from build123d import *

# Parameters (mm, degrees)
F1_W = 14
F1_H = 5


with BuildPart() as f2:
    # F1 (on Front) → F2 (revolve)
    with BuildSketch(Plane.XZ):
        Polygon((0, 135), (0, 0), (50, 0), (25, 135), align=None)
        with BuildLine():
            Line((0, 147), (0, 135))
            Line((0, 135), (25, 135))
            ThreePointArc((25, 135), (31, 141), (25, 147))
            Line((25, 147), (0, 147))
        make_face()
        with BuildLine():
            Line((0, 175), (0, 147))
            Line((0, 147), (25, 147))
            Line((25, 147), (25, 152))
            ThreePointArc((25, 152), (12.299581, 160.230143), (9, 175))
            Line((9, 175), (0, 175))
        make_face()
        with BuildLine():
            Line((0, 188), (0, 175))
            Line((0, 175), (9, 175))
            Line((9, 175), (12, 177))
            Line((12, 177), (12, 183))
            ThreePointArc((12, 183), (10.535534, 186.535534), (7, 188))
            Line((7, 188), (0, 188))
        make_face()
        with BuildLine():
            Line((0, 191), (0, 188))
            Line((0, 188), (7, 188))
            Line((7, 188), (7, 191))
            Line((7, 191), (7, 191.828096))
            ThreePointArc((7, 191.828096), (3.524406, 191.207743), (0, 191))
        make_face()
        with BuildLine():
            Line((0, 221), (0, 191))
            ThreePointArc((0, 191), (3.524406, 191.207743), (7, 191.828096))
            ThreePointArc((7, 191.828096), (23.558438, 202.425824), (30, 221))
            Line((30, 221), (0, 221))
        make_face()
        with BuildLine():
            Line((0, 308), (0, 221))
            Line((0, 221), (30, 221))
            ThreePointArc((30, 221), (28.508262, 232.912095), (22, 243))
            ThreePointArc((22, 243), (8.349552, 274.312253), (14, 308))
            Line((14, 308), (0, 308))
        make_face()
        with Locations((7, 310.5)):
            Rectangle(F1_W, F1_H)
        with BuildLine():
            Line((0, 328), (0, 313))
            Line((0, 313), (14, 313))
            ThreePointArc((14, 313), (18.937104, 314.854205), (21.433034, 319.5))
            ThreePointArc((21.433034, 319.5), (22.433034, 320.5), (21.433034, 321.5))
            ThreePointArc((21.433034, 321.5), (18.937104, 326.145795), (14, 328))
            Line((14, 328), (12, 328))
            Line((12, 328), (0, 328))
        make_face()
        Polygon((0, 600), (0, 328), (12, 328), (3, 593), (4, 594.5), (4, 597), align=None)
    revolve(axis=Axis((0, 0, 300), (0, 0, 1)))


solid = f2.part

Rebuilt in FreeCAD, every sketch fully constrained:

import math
import FreeCAD as App
import Part
import Sketcher

V = App.Vector

doc = App.newDocument("Part")
params = doc.addObject("Spreadsheet::Sheet", "Params")
for row, (alias, value) in enumerate([
    ("sketch1_radius", "6 mm"),
    ("sketch1_radius2", "20 mm"),
    ("sketch1_radius3", "5 mm"),
    ("sketch1_radius4", "29.999998 mm"),
    ("sketch1_radius5", "1 mm"),
    ("revolution_angle", "360 deg"),
], start=1):
    params.set(f"A{row}", alias)
    params.set(f"B{row}", "=" + value)
    params.setAlias(f"B{row}", alias)

body = doc.addObject("PartDesign::Body", "Body")

# Sketch on XZ plane
sketch1 = doc.addObject("Sketcher::SketchObject", "Sketch")
body.addObject(sketch1)
sketch1.AttachmentSupport = (doc.XZ_Plane, [""])
sketch1.MapMode = "FlatFace"
sketch1.addGeometry([
    Part.LineSegment(V(0, 0, 0), V(50, 0, 0)),  # 0
    Part.LineSegment(V(50, 0, 0), V(25, 135, 0)),  # 1
    Part.ArcOfCircle(Part.Circle(V(25, 141, 0), V(0, 0, 1), 6), math.radians(-90), math.radians(90)),  # 2
    Part.LineSegment(V(25, 147, 0), V(25, 152, 0)),  # 3
    Part.ArcOfCircle(Part.Circle(V(28.717685, 171.651433, 0), V(0, 0, 1), 20), math.radians(170.361668), math.radians(259.28731)),  # 4
    Part.LineSegment(V(9, 175, 0), V(12, 177, 0)),  # 5
    Part.LineSegment(V(12, 177, 0), V(12, 183, 0)),  # 6
    Part.ArcOfCircle(Part.Circle(V(7, 183, 0), V(0, 0, 1), 5), math.radians(-0.000004), math.radians(90.000004)),  # 7
    Part.LineSegment(V(7, 188, 0), V(7, 191.828096, 0)),  # 8
    Part.ArcOfCircle(Part.Circle(V(0.000002, 220.999999, 0), V(0, 0, 1), 29.999998), math.radians(-76.506604), math.radians(0.000002)),  # 9
    Part.ArcOfCircle(Part.Circle(V(3.133843, 223.685034, 0), V(0, 0, 1), 26.999996), math.radians(-5.707253), math.radians(45.673466)),  # 10
    Part.ArcOfCircle(Part.Circle(V(67.900215, 281.641565, 0), V(0, 0, 1), 60.000002), math.radians(153.940312), math.radians(220.092692)),  # 11
    Part.LineSegment(V(14, 308, 0), V(14, 313, 0)),  # 12
    Part.ArcOfCircle(Part.Circle(V(14, 320.5, 0), V(0, 0, 1), 7.5), math.radians(-89.999998), math.radians(-7.662255)),  # 13
    Part.ArcOfCircle(Part.Circle(V(21.433034, 320.5, 0), V(0, 0, 1), 1), math.radians(-90), math.radians(90)),  # 14
    Part.ArcOfCircle(Part.Circle(V(14, 320.5, 0), V(0, 0, 1), 7.5), math.radians(7.662255), math.radians(89.999998)),  # 15
    Part.LineSegment(V(14, 328, 0), V(12, 328, 0)),  # 16
    Part.LineSegment(V(12, 328, 0), V(3, 593, 0)),  # 17
    Part.LineSegment(V(3, 593, 0), V(4, 594.5, 0)),  # 18
    Part.LineSegment(V(4, 594.5, 0), V(4, 597, 0)),  # 19
    Part.LineSegment(V(4, 597, 0), V(0, 600, 0)),  # 20
    Part.LineSegment(V(0, 600, 0), V(0, 0, 0)),  # 21
], False)
sketch1.addConstraint([
    Sketcher.Constraint("Coincident", 0, 2, 1, 1),
    Sketcher.Constraint("Coincident", 1, 2, 2, 1),
    Sketcher.Constraint("Coincident", 2, 2, 3, 1),
    Sketcher.Constraint("Coincident", 3, 2, 4, 2),
    Sketcher.Constraint("Coincident", 4, 1, 5, 1),
    Sketcher.Constraint("Coincident", 5, 2, 6, 1),
    Sketcher.Constraint("Tangent", 6, 2, 7, 1),
    Sketcher.Constraint("Coincident", 7, 2, 8, 1),
    Sketcher.Constraint("Coincident", 8, 2, 9, 1),
    Sketcher.Constraint("Coincident", 9, 2, 10, 1),
    Sketcher.Constraint("Coincident", 10, 2, 11, 2),
    Sketcher.Constraint("Coincident", 11, 1, 12, 1),
    Sketcher.Constraint("Coincident", 12, 2, 13, 1),
    Sketcher.Constraint("Coincident", 13, 2, 14, 1),
    Sketcher.Constraint("Coincident", 14, 2, 15, 1),
    Sketcher.Constraint("Tangent", 15, 2, 16, 1),
    Sketcher.Constraint("Coincident", 16, 2, 17, 1),
    Sketcher.Constraint("Coincident", 17, 2, 18, 1),
    Sketcher.Constraint("Coincident", 18, 2, 19, 1),
    Sketcher.Constraint("Coincident", 19, 2, 20, 1),
    Sketcher.Constraint("Coincident", 20, 2, 21, 1),
    Sketcher.Constraint("Coincident", 21, 2, 0, 1),
    Sketcher.Constraint("Horizontal", 0),
    Sketcher.Constraint("Vertical", 3),
    Sketcher.Constraint("Vertical", 6),
    Sketcher.Constraint("Vertical", 8),
    Sketcher.Constraint("Vertical", 12),
    Sketcher.Constraint("Horizontal", 16),
    Sketcher.Constraint("Vertical", 19),
    Sketcher.Constraint("Vertical", 21),
    Sketcher.Constraint("Coincident", 21, 2, -1, 1),
    Sketcher.Constraint("Coincident", 15, 3, 13, 3),
    Sketcher.Constraint("Equal", 13, 15),
    Sketcher.Constraint("PointOnObject", 9, 3, -2),
    Sketcher.Constraint("Horizontal", 13, 3, 14, 3),
    Sketcher.Constraint("Vertical", 2, 3, 1, 2),
    Sketcher.Constraint("Vertical", 1, 2, 2, 2),
    Sketcher.Constraint("Vertical", 15, 3, 11, 1),
    Sketcher.Constraint("Vertical", 14, 3, 13, 2),
    Sketcher.Constraint("Vertical", 6, 2, 16, 2),
    Sketcher.Constraint("Equal", 3, 12),
    Sketcher.Constraint("Radius", 2, 6.0),
    Sketcher.Constraint("Radius", 4, 20.0),
    Sketcher.Constraint("Radius", 7, 5.0),
    Sketcher.Constraint("Radius", 9, 29.999998),
    Sketcher.Constraint("Radius", 14, 1.0),
    Sketcher.Constraint("Radius", 13, 7.5),
    Sketcher.Constraint("DistanceX", 0, 1, 0, 2, 50.0),
    Sketcher.Constraint("DistanceX", 16, 2, 16, 1, 2.0),
    Sketcher.Constraint("DistanceY", 3, 1, 3, 2, 5.0),
    Sketcher.Constraint("DistanceY", 6, 1, 6, 2, 6.0),
    Sketcher.Constraint("DistanceY", 21, 2, 21, 1, 600.0),
    Sketcher.Constraint("Distance", 20, 5.0),
    Sketcher.Constraint("DistanceY", 19, 1, 19, 2, 2.5),
    Sketcher.Constraint("DistanceX", -1, 1, 2, 3, 25.0),
    Sketcher.Constraint("DistanceY", -1, 1, 2, 3, 141.0),
    Sketcher.Constraint("DistanceX", -1, 1, 7, 3, 7.0),
    Sketcher.Constraint("DistanceY", -1, 1, 7, 3, 183.0),
    Sketcher.Constraint("DistanceY", -1, 1, 9, 3, 220.999999),
    Sketcher.Constraint("DistanceX", -1, 1, 4, 1, 9.0),
    Sketcher.Constraint("DistanceY", -1, 1, 4, 1, 175.0),
    Sketcher.Constraint("DistanceX", -1, 1, 7, 2, 7.0),
    Sketcher.Constraint("DistanceY", -1, 1, 9, 2, 221.0),
    Sketcher.Constraint("DistanceX", -1, 1, 10, 2, 22.0),
    Sketcher.Constraint("DistanceY", -1, 1, 10, 2, 243.0),
    Sketcher.Constraint("DistanceY", -1, 1, 11, 1, 308.0),
    Sketcher.Constraint("DistanceX", -1, 1, 17, 2, 3.0),
    Sketcher.Constraint("DistanceY", -1, 1, 17, 2, 593.0),
    Sketcher.Constraint("DistanceX", -1, 1, 18, 2, 4.0),
    Sketcher.Constraint("Radius", 10, 26.999996),
    Sketcher.Constraint("Radius", 11, 60.000002),
])
sketch1.setExpression("Constraints[41]", "Params.sketch1_radius")
sketch1.setExpression("Constraints[42]", "Params.sketch1_radius2")
sketch1.setExpression("Constraints[43]", "Params.sketch1_radius3")
sketch1.setExpression("Constraints[44]", "Params.sketch1_radius4")
sketch1.setExpression("Constraints[45]", "Params.sketch1_radius5")
revolution = doc.addObject("PartDesign::Revolution", "Revolution")
body.addObject(revolution)
revolution.Profile = sketch1
revolution.ReferenceAxis = (sketch1, ["V_Axis"])
revolution.setExpression("Angle", "Params.revolution_angle")

doc.recompute()
